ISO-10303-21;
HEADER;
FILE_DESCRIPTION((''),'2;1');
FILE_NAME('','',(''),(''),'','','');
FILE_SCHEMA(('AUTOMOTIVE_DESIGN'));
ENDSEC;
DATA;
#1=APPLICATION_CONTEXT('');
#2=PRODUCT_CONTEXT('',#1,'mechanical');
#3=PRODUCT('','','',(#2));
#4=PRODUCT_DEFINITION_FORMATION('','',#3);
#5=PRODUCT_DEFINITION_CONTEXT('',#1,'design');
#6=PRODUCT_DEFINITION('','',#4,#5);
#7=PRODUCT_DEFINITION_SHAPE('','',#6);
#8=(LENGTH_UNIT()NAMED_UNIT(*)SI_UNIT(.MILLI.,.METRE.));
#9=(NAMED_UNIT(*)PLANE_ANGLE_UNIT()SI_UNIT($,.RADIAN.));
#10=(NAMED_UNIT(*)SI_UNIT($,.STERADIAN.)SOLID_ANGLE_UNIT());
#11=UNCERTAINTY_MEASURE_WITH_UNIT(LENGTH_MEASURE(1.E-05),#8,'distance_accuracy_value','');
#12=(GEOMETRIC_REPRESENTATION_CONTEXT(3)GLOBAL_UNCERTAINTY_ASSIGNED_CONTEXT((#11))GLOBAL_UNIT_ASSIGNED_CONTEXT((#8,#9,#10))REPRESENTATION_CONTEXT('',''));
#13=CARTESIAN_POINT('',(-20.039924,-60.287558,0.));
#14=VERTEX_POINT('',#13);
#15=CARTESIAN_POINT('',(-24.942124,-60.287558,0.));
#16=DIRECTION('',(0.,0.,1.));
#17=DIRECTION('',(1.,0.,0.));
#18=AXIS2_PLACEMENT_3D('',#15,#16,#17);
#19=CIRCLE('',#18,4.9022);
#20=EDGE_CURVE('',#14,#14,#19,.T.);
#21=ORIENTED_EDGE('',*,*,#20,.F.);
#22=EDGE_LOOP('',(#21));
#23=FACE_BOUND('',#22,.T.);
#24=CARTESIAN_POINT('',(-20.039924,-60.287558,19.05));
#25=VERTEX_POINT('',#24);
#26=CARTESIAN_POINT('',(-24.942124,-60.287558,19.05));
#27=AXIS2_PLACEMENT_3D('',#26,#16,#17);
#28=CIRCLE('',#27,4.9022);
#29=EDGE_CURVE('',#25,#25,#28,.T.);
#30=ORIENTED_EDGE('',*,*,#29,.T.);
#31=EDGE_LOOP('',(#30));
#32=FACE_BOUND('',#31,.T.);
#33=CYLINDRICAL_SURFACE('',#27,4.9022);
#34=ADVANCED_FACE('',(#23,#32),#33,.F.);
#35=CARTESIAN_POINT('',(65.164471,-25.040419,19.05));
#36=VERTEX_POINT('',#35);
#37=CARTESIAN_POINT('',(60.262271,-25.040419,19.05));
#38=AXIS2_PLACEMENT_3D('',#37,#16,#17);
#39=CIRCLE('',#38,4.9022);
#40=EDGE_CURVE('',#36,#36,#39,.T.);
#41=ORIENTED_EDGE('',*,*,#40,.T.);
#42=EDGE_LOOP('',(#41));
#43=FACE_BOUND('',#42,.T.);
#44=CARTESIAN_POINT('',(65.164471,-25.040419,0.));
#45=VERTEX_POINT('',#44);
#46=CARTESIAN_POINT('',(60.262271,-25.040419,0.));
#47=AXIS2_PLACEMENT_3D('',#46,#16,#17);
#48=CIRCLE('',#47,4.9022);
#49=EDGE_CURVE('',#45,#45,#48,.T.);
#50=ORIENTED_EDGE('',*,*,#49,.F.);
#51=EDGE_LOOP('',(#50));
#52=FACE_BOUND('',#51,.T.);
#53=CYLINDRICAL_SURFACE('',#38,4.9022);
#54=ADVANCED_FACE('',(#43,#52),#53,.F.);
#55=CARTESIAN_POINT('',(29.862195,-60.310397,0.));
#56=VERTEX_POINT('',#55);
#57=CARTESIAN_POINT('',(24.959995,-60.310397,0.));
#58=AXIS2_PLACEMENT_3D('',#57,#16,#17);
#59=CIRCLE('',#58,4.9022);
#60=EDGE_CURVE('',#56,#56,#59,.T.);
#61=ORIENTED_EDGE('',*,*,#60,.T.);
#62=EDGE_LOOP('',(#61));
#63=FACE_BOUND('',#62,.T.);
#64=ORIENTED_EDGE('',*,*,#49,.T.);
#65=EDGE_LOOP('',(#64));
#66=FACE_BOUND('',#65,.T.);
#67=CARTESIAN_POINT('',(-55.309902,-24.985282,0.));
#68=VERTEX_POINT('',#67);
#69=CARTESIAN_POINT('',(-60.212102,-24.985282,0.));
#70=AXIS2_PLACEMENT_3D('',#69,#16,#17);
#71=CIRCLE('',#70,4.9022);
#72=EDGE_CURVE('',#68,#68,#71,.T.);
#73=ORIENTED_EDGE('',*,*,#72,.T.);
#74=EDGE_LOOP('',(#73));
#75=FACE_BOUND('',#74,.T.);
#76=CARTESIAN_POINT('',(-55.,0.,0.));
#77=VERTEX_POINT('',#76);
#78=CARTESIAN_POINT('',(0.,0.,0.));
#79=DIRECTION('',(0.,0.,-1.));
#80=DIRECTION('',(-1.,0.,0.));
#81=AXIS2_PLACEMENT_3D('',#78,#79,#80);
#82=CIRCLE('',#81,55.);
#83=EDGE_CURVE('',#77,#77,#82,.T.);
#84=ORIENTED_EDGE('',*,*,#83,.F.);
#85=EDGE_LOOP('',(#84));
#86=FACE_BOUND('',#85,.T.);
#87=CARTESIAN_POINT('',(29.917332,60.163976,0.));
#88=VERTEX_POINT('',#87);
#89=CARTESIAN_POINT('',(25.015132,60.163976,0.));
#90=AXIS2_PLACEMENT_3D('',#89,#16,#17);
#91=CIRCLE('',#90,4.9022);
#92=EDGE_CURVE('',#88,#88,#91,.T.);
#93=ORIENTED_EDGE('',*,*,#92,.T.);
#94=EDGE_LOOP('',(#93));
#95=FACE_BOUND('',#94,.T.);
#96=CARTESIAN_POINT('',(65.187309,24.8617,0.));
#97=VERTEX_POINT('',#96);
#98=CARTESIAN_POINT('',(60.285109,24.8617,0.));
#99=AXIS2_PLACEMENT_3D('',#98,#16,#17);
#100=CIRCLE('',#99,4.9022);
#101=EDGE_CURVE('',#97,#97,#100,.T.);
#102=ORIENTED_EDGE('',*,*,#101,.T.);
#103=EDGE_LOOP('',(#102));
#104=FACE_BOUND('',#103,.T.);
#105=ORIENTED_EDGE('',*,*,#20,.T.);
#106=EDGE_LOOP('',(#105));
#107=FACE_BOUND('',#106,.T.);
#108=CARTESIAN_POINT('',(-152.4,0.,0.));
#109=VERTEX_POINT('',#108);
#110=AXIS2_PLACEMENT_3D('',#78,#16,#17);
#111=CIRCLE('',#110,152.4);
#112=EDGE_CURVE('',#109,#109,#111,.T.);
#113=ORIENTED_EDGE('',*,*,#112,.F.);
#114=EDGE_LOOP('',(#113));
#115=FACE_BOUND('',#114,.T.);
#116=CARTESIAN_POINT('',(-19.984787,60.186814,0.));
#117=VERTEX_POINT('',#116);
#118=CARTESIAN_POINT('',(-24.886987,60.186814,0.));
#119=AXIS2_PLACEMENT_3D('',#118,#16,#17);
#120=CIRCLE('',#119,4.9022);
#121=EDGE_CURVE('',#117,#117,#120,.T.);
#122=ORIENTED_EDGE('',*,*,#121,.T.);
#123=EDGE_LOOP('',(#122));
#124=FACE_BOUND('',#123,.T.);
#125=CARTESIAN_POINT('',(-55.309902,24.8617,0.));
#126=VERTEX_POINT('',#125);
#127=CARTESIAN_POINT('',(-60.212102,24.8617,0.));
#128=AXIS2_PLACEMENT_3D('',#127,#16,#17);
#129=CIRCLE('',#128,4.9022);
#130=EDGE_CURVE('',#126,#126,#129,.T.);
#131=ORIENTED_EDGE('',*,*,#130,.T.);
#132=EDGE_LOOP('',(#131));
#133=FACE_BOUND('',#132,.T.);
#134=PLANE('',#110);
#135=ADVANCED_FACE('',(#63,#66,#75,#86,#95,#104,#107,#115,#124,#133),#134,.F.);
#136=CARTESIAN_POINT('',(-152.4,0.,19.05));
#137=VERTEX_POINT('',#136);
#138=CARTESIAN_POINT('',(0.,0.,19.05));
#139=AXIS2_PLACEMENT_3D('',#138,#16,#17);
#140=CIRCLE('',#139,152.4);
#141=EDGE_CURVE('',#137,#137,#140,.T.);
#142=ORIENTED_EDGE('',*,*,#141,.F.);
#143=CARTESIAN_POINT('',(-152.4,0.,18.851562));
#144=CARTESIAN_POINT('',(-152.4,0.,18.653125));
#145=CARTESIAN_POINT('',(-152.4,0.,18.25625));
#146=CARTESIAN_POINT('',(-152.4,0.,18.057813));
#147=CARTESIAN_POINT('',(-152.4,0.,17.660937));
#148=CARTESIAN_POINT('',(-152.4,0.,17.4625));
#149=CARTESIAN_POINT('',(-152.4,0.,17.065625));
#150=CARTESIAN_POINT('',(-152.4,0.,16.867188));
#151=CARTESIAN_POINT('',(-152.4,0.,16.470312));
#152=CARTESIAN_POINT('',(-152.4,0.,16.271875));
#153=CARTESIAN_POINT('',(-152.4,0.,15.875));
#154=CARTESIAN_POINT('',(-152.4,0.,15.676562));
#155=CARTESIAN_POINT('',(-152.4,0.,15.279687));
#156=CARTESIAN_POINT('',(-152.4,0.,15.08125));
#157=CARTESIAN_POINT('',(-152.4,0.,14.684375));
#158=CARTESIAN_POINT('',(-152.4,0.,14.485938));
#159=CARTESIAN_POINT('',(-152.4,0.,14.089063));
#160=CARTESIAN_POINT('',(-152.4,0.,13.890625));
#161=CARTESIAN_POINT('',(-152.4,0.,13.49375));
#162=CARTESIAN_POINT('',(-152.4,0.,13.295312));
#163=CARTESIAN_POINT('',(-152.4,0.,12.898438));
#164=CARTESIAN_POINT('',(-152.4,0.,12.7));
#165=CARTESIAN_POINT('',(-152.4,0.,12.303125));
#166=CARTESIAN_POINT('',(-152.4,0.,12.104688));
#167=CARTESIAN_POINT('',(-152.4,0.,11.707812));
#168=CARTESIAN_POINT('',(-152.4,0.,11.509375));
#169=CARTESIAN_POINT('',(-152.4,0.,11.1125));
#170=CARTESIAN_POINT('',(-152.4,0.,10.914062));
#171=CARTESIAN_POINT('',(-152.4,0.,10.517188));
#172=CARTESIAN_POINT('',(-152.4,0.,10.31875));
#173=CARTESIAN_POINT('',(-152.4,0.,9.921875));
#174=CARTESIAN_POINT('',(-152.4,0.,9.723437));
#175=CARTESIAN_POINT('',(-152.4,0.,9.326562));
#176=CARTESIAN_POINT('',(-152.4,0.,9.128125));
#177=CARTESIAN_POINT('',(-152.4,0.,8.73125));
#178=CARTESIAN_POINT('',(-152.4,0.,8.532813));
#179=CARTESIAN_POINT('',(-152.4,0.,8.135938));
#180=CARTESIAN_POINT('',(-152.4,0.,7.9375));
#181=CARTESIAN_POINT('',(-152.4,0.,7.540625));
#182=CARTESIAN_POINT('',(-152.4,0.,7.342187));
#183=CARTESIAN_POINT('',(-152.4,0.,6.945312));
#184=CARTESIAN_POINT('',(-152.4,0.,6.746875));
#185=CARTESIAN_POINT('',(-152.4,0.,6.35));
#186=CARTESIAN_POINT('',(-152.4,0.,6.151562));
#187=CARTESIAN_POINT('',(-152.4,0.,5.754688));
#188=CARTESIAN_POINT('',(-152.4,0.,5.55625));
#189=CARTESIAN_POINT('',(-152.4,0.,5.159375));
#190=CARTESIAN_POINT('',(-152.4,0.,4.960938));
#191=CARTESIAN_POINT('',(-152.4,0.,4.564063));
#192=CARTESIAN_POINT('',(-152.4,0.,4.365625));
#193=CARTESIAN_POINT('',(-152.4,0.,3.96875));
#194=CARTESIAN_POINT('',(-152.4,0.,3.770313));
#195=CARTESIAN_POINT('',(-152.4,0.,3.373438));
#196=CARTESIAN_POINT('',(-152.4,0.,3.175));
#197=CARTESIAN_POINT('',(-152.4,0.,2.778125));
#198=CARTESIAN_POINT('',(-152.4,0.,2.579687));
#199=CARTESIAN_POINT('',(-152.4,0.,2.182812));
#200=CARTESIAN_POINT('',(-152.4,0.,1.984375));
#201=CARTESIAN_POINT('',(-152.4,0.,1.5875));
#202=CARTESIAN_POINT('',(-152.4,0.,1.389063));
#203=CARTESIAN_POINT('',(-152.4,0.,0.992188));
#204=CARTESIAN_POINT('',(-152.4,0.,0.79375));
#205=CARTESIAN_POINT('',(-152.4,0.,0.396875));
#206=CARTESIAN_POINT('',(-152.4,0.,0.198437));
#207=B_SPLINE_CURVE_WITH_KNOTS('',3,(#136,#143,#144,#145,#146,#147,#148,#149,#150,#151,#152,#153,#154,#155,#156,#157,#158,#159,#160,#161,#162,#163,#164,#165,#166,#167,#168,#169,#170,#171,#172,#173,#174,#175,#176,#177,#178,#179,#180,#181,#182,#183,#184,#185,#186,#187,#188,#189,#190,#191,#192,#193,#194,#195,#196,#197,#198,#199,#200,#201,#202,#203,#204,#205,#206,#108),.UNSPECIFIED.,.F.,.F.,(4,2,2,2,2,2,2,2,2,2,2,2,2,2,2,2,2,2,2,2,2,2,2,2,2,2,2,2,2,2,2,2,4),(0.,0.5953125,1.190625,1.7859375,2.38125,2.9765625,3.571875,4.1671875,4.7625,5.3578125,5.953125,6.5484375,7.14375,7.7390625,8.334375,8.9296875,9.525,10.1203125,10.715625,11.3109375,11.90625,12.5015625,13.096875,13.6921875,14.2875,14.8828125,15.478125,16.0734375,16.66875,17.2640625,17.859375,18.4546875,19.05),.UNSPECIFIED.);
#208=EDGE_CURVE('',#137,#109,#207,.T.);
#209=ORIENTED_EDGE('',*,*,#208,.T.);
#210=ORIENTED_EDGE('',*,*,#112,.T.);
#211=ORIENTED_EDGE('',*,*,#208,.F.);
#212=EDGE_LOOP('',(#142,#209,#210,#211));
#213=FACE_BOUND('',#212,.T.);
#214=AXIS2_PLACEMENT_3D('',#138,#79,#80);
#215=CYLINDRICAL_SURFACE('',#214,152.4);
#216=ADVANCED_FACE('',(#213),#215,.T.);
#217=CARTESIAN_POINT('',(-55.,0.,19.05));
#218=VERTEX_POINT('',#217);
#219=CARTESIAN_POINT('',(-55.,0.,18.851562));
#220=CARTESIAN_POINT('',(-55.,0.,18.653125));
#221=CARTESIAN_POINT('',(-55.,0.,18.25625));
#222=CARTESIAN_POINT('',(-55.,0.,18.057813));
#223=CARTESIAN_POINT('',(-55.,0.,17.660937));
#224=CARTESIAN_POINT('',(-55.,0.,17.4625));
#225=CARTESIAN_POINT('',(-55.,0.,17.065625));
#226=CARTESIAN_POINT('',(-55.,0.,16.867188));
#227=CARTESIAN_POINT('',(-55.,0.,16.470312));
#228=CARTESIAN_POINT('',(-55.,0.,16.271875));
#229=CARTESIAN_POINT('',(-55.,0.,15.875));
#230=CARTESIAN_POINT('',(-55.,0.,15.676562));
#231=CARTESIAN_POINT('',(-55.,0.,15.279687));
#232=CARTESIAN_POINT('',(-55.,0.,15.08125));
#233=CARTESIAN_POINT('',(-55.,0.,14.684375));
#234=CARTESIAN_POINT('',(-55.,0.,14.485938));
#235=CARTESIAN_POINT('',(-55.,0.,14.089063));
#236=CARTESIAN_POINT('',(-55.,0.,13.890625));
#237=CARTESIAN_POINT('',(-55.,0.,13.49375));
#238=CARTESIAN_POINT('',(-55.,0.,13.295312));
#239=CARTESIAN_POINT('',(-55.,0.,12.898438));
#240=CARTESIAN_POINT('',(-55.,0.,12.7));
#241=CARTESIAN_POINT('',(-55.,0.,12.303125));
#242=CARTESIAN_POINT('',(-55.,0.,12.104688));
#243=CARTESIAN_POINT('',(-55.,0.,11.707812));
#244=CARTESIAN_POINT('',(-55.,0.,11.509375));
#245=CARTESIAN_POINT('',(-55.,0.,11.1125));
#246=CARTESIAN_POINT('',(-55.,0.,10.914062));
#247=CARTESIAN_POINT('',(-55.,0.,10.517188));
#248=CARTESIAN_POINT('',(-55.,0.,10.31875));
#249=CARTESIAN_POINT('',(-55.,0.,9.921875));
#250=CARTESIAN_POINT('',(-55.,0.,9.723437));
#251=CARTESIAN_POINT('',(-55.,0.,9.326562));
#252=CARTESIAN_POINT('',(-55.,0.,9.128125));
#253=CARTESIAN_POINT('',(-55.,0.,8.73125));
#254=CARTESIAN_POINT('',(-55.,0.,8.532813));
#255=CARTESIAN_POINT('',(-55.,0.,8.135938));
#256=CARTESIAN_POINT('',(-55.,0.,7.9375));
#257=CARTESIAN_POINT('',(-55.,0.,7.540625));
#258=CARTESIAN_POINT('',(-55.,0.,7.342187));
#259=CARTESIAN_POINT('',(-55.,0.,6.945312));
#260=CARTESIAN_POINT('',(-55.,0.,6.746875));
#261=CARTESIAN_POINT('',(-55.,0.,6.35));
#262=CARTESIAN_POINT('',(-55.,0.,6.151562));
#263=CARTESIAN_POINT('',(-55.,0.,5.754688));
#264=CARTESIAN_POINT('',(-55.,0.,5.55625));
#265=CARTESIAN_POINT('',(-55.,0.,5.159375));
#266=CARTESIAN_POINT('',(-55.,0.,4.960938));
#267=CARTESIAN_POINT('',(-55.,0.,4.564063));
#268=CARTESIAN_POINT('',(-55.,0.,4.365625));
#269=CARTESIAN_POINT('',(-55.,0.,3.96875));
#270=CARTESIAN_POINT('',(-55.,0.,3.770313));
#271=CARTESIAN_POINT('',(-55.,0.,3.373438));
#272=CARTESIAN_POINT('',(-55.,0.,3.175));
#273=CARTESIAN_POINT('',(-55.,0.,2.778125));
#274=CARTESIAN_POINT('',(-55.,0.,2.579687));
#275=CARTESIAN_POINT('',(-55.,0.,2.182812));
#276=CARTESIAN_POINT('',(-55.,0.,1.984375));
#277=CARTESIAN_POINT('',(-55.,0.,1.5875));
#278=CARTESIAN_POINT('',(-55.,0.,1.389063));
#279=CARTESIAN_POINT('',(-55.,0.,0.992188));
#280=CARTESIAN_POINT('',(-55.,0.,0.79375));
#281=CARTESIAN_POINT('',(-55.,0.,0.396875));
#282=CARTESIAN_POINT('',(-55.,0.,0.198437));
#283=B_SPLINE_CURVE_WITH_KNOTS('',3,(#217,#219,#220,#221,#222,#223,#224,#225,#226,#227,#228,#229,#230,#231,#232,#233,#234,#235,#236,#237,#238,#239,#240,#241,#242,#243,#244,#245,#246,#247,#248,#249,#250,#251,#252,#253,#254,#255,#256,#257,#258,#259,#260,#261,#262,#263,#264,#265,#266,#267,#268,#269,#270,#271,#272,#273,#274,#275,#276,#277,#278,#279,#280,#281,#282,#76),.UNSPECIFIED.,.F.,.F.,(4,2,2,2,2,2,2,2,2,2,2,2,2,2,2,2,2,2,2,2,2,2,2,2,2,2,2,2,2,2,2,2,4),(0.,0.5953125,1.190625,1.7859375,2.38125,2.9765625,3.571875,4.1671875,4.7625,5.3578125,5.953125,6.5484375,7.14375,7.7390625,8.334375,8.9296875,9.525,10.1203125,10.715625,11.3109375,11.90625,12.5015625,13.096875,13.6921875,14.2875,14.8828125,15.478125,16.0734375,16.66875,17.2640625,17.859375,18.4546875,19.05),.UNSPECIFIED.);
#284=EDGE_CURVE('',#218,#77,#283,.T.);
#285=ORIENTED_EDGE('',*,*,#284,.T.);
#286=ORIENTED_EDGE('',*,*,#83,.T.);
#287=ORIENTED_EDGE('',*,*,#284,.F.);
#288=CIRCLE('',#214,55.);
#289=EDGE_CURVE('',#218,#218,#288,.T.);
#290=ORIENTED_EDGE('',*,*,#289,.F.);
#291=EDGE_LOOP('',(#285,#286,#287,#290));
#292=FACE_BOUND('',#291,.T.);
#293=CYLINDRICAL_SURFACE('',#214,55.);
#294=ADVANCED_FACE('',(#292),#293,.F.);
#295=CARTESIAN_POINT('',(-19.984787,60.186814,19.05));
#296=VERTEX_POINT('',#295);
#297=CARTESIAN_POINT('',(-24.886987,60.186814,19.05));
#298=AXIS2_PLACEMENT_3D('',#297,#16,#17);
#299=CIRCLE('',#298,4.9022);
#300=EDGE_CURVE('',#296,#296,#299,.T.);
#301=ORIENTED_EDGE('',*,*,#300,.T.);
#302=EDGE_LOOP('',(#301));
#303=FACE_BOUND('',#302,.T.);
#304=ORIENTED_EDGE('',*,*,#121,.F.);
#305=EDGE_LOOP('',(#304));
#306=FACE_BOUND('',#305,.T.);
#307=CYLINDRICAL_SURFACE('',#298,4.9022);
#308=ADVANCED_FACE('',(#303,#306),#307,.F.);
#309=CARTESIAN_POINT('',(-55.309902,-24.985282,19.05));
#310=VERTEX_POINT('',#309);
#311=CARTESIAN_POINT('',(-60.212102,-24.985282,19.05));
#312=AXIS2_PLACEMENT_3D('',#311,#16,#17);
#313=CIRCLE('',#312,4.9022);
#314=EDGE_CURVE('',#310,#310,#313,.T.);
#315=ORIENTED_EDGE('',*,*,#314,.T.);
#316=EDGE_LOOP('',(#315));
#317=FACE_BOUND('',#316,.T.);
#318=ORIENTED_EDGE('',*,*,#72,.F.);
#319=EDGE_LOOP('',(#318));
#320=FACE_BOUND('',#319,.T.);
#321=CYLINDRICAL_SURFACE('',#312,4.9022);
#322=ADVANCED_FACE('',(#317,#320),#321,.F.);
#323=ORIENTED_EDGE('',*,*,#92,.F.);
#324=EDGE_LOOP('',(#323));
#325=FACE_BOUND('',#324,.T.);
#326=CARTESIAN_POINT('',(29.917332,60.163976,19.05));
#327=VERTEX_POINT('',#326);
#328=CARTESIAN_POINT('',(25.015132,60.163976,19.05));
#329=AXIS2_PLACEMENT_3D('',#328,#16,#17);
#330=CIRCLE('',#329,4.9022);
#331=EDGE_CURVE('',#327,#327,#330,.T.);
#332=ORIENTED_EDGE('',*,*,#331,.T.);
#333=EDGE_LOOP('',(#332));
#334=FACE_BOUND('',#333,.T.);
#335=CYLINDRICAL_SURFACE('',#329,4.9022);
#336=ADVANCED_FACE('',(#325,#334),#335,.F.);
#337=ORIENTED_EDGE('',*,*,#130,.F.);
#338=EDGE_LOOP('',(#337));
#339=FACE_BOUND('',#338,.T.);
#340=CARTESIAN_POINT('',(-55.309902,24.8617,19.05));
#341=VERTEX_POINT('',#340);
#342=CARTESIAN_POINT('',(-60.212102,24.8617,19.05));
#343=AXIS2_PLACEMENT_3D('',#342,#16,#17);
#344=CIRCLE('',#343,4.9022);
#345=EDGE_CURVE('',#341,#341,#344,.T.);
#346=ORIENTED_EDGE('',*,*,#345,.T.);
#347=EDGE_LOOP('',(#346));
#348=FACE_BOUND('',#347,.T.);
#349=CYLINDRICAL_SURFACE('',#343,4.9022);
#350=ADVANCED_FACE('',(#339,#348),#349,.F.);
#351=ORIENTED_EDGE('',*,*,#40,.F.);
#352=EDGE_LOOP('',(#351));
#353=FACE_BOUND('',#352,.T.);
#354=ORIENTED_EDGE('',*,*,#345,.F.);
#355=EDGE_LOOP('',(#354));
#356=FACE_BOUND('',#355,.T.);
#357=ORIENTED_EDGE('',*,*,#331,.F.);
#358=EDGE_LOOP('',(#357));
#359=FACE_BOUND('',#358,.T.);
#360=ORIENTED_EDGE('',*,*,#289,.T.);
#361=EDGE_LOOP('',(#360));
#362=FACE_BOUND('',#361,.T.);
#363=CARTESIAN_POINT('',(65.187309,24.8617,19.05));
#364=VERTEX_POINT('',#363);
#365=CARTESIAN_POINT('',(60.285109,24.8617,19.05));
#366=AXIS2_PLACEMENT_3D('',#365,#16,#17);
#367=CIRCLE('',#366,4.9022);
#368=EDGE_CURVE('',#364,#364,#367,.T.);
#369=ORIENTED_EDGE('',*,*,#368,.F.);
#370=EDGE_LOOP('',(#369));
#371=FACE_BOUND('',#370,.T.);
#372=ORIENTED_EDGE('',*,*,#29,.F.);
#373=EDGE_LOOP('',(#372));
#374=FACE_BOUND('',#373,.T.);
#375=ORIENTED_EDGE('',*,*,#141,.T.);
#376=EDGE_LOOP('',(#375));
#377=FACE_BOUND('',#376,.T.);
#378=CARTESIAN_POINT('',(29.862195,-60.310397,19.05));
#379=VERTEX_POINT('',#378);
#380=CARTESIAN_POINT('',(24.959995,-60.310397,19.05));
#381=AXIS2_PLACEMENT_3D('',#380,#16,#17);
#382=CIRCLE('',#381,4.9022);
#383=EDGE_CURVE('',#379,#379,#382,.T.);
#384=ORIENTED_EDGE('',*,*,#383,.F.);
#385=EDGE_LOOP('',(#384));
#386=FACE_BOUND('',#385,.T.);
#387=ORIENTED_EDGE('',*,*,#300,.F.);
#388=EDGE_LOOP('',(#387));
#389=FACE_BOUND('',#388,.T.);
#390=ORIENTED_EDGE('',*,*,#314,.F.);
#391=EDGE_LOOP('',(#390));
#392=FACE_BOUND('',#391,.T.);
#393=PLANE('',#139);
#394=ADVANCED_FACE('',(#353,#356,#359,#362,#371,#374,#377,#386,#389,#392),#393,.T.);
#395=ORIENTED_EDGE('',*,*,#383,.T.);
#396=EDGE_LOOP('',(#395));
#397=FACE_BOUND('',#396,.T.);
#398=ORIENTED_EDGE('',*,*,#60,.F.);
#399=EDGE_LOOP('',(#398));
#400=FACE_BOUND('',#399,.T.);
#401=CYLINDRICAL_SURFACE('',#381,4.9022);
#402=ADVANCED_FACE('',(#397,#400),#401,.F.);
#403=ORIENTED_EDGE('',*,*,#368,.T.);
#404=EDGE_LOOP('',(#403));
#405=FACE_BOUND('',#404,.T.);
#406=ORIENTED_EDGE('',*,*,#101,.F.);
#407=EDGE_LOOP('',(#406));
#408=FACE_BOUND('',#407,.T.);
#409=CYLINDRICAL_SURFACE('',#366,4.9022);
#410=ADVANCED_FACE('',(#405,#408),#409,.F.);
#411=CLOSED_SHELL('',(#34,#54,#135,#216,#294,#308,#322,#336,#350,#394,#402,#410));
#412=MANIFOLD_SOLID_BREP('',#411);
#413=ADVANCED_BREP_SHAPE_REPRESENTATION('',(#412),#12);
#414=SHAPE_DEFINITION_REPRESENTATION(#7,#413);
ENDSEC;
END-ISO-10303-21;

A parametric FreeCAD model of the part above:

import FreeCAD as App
import Part
import Sketcher
Q = App.Units.Quantity

doc = App.newDocument("Part")
params = doc.addObject("Spreadsheet::Sheet", "Params")
for row, (alias, value) in enumerate([
    ("sketch1_diameter", "12 in"),
    ("pad1_length", "0.75 in"),
    ("sketch3_diameter", "0.386 in"),
    ("hole_diameter", "0.386 in"),
], start=1):
    params.set(f"A{row}", alias)
    params.set(f"B{row}", "=" + value)
    params.setAlias(f"B{row}", alias)

body = doc.addObject("PartDesign::Body", "Body")

# Sketch on XY plane
sketch1 = body.newObject("Sketcher::SketchObject", "Sketch")
sketch1.AttachmentSupport = (doc.getObject("XY_Plane"), [""])
sketch1.MapMode = "FlatFace"
sketch1.addGeometry(Part.Circle(App.Vector(0, 0, 0), App.Vector(0, 0, 1), 152), False)
sketch1.addConstraint([
    Sketcher.Constraint("Coincident", 0, 3, -1, 1),
    Sketcher.Constraint("Diameter", 0, Q("12 in")),
])
sketch1.setExpression("Constraints[1]", "Params.sketch1_diameter")
pad1 = body.newObject("PartDesign::Pad", "Pad")
pad1.Profile = sketch1
pad1.setExpression("Length", "Params.pad1_length")

# Sketch on XY plane
sketch2 = body.newObject("Sketcher::SketchObject", "Sketch001")
sketch2.AttachmentSupport = (doc.getObject("XY_Plane"), [""])
sketch2.MapMode = "FlatFace"
sketch2.addGeometry(Part.Circle(App.Vector(0, 0, 0), App.Vector(0, 0, 1), 55), False)
sketch2.addConstraint([
    Sketcher.Constraint("Coincident", 0, 3, -1, 1),
    Sketcher.Constraint("Diameter", 0, Q("110 mm")),
])
pocket1 = body.newObject("PartDesign::Pocket", "Pocket")
pocket1.Profile = sketch2
pocket1.Type = "ThroughAll"
pocket1.Reversed = True

# Sketch on XY plane
sketch3 = body.newObject("Sketcher::SketchObject", "Sketch002")
sketch3.AttachmentSupport = (doc.getObject("XY_Plane"), [""])
sketch3.MapMode = "FlatFace"
sketch3.AttachmentOffset = App.Placement(App.Vector(0, 0, 0.75 * 25.4), App.Rotation())
sketch3.addGeometry([
    Part.Circle(App.Vector(60.3, 24.9, 0), App.Vector(0, 0, 1), 4.9),  # 0
    Part.Circle(App.Vector(60.3, -25, 0), App.Vector(0, 0, 1), 4.9),  # 1
    Part.Circle(App.Vector(-24.9, -60.3, 0), App.Vector(0, 0, 1), 4.9),  # 2
    Part.Circle(App.Vector(-60.2, -25, 0), App.Vector(0, 0, 1), 4.9),  # 3
    Part.Circle(App.Vector(25, -60.3, 0), App.Vector(0, 0, 1), 4.9),  # 4
    Part.Circle(App.Vector(-60.2, 24.9, 0), App.Vector(0, 0, 1), 4.9),  # 5
    Part.Circle(App.Vector(-24.9, 60.2, 0), App.Vector(0, 0, 1), 4.9),  # 6
    Part.Circle(App.Vector(25, 60.2, 0), App.Vector(0, 0, 1), 4.9),  # 7
], False)
sketch3.addConstraint([
    Sketcher.Constraint("Equal", 0, 1),
    Sketcher.Constraint("Equal", 1, 2),
    Sketcher.Constraint("Equal", 2, 3),
    Sketcher.Constraint("Equal", 3, 4),
    Sketcher.Constraint("Equal", 4, 5),
    Sketcher.Constraint("Equal", 5, 6),
    Sketcher.Constraint("Equal", 6, 7),
    Sketcher.Constraint("Horizontal", 0, 3, 5, 3),
    Sketcher.Constraint("Vertical", 3, 3, 5, 3),
    Sketcher.Constraint("Diameter", 0, Q("0.386 in")),
    Sketcher.Constraint("DistanceY", -1, 1, 0, 3, Q("24.8617 mm")),
    Sketcher.Constraint("DistanceX", 3, 3, -1, 1, Q("60.212102 mm")),
    Sketcher.Constraint("DistanceX", -1, 1, 0, 3, Q("60.285109 mm")),
    Sketcher.Constraint("DistanceX", -1, 1, 1, 3, Q("60.262271 mm")),
    Sketcher.Constraint("DistanceY", 1, 3, -1, 1, Q("25.040419 mm")),
    Sketcher.Constraint("DistanceY", 2, 3, -1, 1, Q("60.287558 mm")),
    Sketcher.Constraint("DistanceX", -1, 1, 7, 3, Q("25.015132 mm")),
    Sketcher.Constraint("DistanceX", 2, 3, 4, 3, Q("49.902119 mm")),
    Sketcher.Constraint("DistanceY", 4, 3, 2, 3, Q("0.022838 mm")),
    Sketcher.Constraint("DistanceX", 6, 3, 1, 3, Q("85.149258 mm")),
    Sketcher.Constraint("DistanceY", 7, 3, 6, 3, Q("0.022838 mm")),
    Sketcher.Constraint("DistanceX", 2, 3, -1, 1, Q("24.942124 mm")),
    Sketcher.Constraint("DistanceY", 3, 3, -1, 1, Q("24.985282 mm")),
    Sketcher.Constraint("DistanceY", -1, 1, 6, 3, Q("60.186814 mm")),
])
sketch3.setExpression("Constraints[9]", "Params.sketch3_diameter")
doc.recompute()
hole = body.newObject("PartDesign::Hole", "Hole")
hole.Profile = sketch3
hole.ThreadType = "None"
hole.setExpression("Diameter", "Params.hole_diameter")
hole.DepthType = "ThroughAll"

doc.recompute()
